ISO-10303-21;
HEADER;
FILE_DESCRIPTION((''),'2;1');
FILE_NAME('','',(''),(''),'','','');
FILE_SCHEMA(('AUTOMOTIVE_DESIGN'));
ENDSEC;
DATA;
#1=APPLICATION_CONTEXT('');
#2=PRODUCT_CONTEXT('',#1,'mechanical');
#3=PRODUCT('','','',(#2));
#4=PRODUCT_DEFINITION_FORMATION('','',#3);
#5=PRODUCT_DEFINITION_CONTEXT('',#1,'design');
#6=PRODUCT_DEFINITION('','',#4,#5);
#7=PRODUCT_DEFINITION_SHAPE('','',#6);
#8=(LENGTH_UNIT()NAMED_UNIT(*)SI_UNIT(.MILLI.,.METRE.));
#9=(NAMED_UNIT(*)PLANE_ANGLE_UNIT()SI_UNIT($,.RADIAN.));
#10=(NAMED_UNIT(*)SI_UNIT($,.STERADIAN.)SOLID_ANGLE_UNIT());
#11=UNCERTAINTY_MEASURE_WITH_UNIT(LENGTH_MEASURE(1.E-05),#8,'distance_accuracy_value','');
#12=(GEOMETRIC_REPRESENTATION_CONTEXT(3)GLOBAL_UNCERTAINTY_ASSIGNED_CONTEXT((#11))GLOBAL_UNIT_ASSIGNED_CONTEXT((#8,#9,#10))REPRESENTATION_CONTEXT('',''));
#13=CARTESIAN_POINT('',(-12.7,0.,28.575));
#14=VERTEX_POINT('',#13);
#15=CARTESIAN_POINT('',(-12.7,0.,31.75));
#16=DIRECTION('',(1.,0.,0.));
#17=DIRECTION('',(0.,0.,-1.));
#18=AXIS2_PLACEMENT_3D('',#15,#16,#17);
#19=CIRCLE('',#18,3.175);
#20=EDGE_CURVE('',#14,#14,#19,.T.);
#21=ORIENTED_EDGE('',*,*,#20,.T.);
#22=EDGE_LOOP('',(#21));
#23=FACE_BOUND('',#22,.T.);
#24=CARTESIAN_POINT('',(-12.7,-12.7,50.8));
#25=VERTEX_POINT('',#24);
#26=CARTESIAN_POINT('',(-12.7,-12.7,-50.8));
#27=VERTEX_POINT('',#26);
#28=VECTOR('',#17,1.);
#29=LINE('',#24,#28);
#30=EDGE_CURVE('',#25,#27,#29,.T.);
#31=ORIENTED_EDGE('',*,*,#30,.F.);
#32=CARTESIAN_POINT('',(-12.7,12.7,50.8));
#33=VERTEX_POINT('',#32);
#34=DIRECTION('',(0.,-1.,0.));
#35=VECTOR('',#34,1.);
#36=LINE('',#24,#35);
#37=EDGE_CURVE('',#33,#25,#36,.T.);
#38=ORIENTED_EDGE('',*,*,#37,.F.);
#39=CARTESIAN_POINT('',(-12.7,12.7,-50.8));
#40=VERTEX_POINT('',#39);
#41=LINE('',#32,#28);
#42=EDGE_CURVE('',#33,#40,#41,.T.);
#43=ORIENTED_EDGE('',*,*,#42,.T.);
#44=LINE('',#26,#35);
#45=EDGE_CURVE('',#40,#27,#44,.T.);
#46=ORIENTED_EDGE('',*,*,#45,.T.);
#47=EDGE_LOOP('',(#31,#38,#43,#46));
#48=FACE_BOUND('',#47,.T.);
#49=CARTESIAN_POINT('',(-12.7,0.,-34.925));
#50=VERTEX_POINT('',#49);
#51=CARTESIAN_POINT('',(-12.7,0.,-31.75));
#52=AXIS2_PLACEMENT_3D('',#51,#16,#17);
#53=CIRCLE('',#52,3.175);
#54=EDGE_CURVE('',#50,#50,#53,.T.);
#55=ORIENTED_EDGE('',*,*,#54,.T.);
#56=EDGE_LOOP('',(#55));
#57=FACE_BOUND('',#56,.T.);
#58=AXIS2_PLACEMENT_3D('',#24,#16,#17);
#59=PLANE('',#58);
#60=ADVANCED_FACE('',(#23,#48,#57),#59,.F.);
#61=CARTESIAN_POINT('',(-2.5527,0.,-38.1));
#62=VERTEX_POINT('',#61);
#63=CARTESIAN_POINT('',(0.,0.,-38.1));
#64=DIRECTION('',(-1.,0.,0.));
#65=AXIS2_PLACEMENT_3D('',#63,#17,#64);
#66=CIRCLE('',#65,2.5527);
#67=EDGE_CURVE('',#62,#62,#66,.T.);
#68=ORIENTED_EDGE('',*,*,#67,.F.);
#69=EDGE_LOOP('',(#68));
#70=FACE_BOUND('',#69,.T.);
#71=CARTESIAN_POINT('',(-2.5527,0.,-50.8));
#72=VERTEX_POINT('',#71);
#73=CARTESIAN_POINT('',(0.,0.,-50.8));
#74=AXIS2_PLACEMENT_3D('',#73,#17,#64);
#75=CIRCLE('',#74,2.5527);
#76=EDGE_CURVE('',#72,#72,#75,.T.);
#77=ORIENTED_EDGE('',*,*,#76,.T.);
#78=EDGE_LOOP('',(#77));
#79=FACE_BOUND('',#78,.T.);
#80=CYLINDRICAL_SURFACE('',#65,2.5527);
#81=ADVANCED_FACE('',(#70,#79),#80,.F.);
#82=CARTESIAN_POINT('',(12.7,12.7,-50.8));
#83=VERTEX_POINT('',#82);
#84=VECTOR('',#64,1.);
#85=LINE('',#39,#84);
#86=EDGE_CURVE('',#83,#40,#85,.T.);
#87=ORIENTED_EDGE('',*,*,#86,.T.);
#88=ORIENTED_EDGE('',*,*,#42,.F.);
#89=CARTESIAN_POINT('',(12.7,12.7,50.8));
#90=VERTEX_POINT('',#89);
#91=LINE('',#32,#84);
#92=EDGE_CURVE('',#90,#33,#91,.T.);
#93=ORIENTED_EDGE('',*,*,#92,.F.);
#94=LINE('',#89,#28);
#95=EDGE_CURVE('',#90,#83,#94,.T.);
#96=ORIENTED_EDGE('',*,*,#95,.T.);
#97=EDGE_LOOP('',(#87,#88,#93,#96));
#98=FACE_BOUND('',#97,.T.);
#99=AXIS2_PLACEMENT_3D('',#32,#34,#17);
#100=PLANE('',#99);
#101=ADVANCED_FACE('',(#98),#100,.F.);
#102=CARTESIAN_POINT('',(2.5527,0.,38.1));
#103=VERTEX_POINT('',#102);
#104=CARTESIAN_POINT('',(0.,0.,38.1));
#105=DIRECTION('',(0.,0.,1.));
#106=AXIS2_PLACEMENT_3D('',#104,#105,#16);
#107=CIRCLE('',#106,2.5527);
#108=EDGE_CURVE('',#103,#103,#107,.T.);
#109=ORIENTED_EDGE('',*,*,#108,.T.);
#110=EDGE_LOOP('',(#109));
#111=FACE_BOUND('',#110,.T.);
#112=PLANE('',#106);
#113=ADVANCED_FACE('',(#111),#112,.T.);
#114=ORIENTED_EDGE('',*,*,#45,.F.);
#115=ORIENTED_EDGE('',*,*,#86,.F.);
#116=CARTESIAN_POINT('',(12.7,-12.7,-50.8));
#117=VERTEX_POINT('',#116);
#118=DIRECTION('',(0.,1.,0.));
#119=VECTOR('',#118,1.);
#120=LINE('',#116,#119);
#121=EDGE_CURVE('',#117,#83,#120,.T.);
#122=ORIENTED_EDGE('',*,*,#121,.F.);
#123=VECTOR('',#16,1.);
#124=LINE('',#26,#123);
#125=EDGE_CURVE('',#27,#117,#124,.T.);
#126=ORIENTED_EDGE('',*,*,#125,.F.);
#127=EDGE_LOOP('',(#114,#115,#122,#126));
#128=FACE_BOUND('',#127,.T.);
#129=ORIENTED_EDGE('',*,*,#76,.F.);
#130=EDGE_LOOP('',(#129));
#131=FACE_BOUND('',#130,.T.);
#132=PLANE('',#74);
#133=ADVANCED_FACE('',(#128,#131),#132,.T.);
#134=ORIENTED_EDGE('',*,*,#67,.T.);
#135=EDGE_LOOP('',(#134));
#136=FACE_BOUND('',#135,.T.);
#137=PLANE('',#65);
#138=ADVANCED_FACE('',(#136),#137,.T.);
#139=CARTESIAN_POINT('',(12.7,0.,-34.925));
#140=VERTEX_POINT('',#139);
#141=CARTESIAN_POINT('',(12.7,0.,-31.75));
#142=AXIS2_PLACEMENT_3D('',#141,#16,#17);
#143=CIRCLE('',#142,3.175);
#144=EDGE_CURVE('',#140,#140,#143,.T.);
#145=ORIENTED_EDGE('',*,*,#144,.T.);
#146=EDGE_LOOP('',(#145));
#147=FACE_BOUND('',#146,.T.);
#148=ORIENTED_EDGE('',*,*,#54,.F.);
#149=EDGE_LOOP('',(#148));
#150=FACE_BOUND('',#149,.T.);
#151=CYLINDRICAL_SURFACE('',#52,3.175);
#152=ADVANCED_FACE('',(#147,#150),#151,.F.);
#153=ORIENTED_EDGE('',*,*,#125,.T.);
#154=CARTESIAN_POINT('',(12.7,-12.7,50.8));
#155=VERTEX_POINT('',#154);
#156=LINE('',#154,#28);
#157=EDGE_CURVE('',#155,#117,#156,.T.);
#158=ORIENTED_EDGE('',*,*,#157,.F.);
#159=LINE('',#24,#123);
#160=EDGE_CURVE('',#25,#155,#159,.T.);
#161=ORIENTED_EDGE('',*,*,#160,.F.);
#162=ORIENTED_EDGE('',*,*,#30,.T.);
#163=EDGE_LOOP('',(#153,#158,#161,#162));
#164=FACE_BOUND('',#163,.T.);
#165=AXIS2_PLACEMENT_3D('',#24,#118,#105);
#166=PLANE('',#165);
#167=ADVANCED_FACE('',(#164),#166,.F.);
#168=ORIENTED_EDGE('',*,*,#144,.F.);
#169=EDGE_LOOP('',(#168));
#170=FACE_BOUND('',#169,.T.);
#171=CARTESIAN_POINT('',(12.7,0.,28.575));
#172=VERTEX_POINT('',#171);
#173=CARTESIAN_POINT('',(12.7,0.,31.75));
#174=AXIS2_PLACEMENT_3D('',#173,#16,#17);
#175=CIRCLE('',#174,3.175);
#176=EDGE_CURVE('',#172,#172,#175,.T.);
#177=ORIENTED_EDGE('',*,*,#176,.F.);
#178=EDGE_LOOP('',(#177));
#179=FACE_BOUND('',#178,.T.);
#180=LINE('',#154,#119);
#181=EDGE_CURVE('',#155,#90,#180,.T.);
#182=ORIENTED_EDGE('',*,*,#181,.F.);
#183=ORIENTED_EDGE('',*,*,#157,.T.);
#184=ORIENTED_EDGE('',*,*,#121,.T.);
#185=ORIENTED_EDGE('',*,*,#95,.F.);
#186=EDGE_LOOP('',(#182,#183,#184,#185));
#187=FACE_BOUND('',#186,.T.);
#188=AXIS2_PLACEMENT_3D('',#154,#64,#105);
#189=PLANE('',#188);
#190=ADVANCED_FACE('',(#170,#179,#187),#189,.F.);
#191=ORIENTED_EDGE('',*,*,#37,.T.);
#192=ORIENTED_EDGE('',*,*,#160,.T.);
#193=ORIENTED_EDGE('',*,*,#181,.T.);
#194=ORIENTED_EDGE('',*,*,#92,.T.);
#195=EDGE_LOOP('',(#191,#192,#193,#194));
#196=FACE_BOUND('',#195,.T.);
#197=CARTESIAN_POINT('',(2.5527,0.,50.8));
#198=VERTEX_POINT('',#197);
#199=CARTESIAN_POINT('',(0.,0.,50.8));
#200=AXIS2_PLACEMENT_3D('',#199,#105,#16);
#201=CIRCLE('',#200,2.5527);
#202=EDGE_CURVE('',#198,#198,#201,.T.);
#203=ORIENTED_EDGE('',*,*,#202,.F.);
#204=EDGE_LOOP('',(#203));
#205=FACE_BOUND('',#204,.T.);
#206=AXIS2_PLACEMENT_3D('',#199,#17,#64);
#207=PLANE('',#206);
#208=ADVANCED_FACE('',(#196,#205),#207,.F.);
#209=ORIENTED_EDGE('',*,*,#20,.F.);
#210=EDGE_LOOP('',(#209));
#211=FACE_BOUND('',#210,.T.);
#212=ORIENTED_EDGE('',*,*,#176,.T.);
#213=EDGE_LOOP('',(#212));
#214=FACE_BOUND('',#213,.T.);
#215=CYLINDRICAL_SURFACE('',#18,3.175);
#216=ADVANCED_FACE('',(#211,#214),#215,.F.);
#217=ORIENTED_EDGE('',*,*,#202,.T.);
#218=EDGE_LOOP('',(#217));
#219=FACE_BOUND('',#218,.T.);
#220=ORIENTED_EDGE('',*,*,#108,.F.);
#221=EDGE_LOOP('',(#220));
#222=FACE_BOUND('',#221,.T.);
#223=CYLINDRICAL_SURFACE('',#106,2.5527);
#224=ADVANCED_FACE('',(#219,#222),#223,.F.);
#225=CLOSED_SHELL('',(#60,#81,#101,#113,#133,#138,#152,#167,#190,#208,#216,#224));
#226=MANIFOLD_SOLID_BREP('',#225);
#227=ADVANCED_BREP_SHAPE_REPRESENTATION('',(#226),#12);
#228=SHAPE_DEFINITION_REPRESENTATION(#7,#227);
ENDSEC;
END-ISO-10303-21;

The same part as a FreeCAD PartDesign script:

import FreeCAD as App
import Part
import Sketcher

V = App.Vector
Q = App.Units.Quantity


def add_polygon(sketch, points):
    """Adds a closed chain of lines whose ends are joined by coincident constraints."""
    first, n = sketch.GeometryCount, len(points)
    for a, b in zip(points, points[1:] + points[:1]):
        sketch.addGeometry(Part.LineSegment(App.Vector(*a, 0), App.Vector(*b, 0)), False)
    for i in range(n):
        sketch.addConstraint(Sketcher.Constraint("Coincident", first + i, 2, first + (i + 1) % n, 1))

doc = App.newDocument("Part")
body = doc.addObject("PartDesign::Body", "Body")

sketch1 = body.newObject("Sketcher::SketchObject", "Sketch")
sketch1.AttachmentSupport = (doc.getObject("XY_Plane"), [""])
sketch1.MapMode = "FlatFace"
add_polygon(sketch1, [(-12.7, 12.7), (-12.7, -12.7), (12.7, -12.7), (12.7, 12.7)])
sketch1.addConstraint([
    Sketcher.Constraint("Vertical", 0),
    Sketcher.Constraint("Horizontal", 1),
    Sketcher.Constraint("Vertical", 2),
    Sketcher.Constraint("Horizontal", 3),
    Sketcher.Constraint("Symmetric", 0, 2, 2, 2, -1, 1),
    Sketcher.Constraint("Equal", 3, 0),
    Sketcher.Constraint("DistanceX", 1, 1, 1, 2, Q("1 in")),
])
pad1 = body.newObject("PartDesign::Pad", "Pad")
pad1.Profile = sketch1
pad1.Length = Q("4 in")
pad1.Midplane = True

sketch2 = body.newObject("Sketcher::SketchObject", "Sketch001")
sketch2.AttachmentSupport = (doc.getObject("XY_Plane"), [""])
sketch2.MapMode = "FlatFace"
sketch2.AttachmentOffset = App.Placement(V(0, 0, 2 * 25.4), App.Rotation())
sketch2.addGeometry(Part.Circle(V(0, 0, 0), V(0, 0, 1), 2.5527), False)
sketch2.addConstraint([
    Sketcher.Constraint("Coincident", 0, 3, -1, 1),
    Sketcher.Constraint("Diameter", 0, Q("0.201 in")),
])
pocket1 = body.newObject("PartDesign::Pocket", "Pocket")
pocket1.Profile = sketch2
pocket1.Length = Q("0.5 in")

sketch3 = body.newObject("Sketcher::SketchObject", "Sketch002")
sketch3.AttachmentSupport = (doc.getObject("XY_Plane"), [""])
sketch3.MapMode = "FlatFace"
sketch3.AttachmentOffset = App.Placement(V(0, 0, -1.5 * 25.4), App.Rotation())
sketch3.addGeometry(Part.Circle(V(0, 0, 0), V(0, 0, 1), 2.5527), False)
sketch3.addConstraint([
    Sketcher.Constraint("Coincident", 0, 3, -1, 1),
    Sketcher.Constraint("Diameter", 0, Q("0.201 in")),
])
pocket2 = body.newObject("PartDesign::Pocket", "Pocket001")
pocket2.Profile = sketch3
pocket2.Length = Q("0.5 in")

sketch4 = body.newObject("Sketcher::SketchObject", "Sketch003")
sketch4.AttachmentSupport = (doc.getObject("YZ_Plane"), [""])
sketch4.MapMode = "FlatFace"
sketch4.AttachmentOffset = App.Placement(V(0, 0, 0.5 * 25.4), App.Rotation())
sketch4.addGeometry([
    Part.Circle(V(0, 31.75, 0), V(0, 0, 1), 3.175),
    Part.Circle(V(0, -31.75, 0), V(0, 0, 1), 3.175),
], False)
sketch4.addConstraint([
    Sketcher.Constraint("Equal", 0, 1),
    Sketcher.Constraint("Symmetric", 0, 3, 1, 3, -1, 1),
    Sketcher.Constraint("PointOnObject", 0, 3, -2),
    Sketcher.Constraint("Diameter", 0, Q("0.25 in")),
    Sketcher.Constraint("DistanceY", 1, 3, 0, 3, Q("2.5 in")),
])
pocket3 = body.newObject("PartDesign::Pocket", "Pocket002")
pocket3.Profile = sketch4
pocket3.Type = "ThroughAll"

doc.recompute()
